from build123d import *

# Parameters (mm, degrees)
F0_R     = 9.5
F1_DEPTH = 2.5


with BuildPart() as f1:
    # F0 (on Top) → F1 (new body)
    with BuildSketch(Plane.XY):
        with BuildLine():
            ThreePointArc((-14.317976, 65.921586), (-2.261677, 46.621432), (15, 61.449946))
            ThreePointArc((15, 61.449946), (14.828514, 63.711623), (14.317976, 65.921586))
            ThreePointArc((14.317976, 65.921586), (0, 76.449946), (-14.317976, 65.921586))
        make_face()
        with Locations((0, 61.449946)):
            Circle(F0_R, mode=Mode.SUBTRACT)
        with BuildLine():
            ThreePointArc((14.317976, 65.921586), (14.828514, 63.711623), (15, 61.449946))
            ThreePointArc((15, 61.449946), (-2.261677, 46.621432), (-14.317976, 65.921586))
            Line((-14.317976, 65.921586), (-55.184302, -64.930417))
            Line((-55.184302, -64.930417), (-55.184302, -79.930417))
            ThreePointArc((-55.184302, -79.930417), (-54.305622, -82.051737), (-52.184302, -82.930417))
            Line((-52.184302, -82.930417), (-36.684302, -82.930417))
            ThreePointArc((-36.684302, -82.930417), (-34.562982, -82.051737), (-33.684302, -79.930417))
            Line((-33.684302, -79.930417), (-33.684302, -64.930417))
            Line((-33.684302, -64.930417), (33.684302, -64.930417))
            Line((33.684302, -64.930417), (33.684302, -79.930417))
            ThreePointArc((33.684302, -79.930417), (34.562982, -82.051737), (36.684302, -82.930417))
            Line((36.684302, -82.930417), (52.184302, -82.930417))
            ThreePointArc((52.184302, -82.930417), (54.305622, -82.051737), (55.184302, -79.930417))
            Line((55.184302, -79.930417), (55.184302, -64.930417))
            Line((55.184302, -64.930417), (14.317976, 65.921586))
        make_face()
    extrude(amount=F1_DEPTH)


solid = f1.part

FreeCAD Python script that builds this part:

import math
import FreeCAD as App
import Part
import Sketcher
from FreeCAD import Vector

doc = App.newDocument("Part")
body = doc.addObject("PartDesign::Body", "Body")

# Sketch on XY plane
sketch1 = body.newObject("Sketcher::SketchObject", "Sketch")
sketch1.AttachmentSupport = (doc.getObject("XY_Plane"), [""])
sketch1.MapMode = "FlatFace"
sketch1.addGeometry([
    Part.ArcOfCircle(Part.Circle(Vector(0, 61.4, 0), Vector(0, 0, 1), 15), math.radians(17), math.radians(163)),  # 0
    Part.LineSegment(Vector(-14.3, 65.9, 0), Vector(-55.2, -64.9, 0)),  # 1
    Part.LineSegment(Vector(-55.2, -64.9, 0), Vector(-55.2, -79.9, 0)),  # 2
    Part.ArcOfCircle(Part.Circle(Vector(-52.2, -79.9, 0), Vector(0, 0, 1), 3), math.radians(-180), math.radians(-90)),  # 3
    Part.LineSegment(Vector(-52.2, -82.9, 0), Vector(-36.7, -82.9, 0)),  # 4
    Part.ArcOfCircle(Part.Circle(Vector(-36.7, -79.9, 0), Vector(0, 0, 1), 3), math.radians(-90), math.radians(0)),  # 5
    Part.LineSegment(Vector(-33.7, -79.9, 0), Vector(-33.7, -64.9, 0)),  # 6
    Part.LineSegment(Vector(-33.7, -64.9, 0), Vector(33.7, -64.9, 0)),  # 7
    Part.LineSegment(Vector(33.7, -64.9, 0), Vector(33.7, -79.9, 0)),  # 8
    Part.ArcOfCircle(Part.Circle(Vector(36.7, -79.9, 0), Vector(0, 0, 1), 3), math.radians(-180), math.radians(-90)),  # 9
    Part.LineSegment(Vector(36.7, -82.9, 0), Vector(52.2, -82.9, 0)),  # 10
    Part.ArcOfCircle(Part.Circle(Vector(52.2, -79.9, 0), Vector(0, 0, 1), 3), math.radians(-90), math.radians(0)),  # 11
    Part.LineSegment(Vector(55.2, -79.9, 0), Vector(55.2, -64.9, 0)),  # 12
    Part.LineSegment(Vector(55.2, -64.9, 0), Vector(14.3, 65.9, 0)),  # 13
    Part.Circle(Vector(0, 61.4, 0), Vector(0, 0, 1), 9.5),  # 14
], False)
sketch1.addConstraint([
    Sketcher.Constraint("Tangent", 0, 2, 1, 1),
    Sketcher.Constraint("Coincident", 1, 2, 2, 1),
    Sketcher.Constraint("Tangent", 2, 2, 3, 1),
    Sketcher.Constraint("Tangent", 3, 2, 4, 1),
    Sketcher.Constraint("Tangent", 4, 2, 5, 1),
    Sketcher.Constraint("Tangent", 5, 2, 6, 1),
    Sketcher.Constraint("Coincident", 6, 2, 7, 1),
    Sketcher.Constraint("Coincident", 7, 2, 8, 1),
    Sketcher.Constraint("Tangent", 8, 2, 9, 1),
    Sketcher.Constraint("Tangent", 9, 2, 10, 1),
    Sketcher.Constraint("Tangent", 10, 2, 11, 1),
    Sketcher.Constraint("Tangent", 11, 2, 12, 1),
    Sketcher.Constraint("Coincident", 12, 2, 13, 1),
    Sketcher.Constraint("Tangent", 13, 2, 0, 1),
    Sketcher.Constraint("Vertical", 2),
    Sketcher.Constraint("Horizontal", 4),
    Sketcher.Constraint("Vertical", 6),
    Sketcher.Constraint("Horizontal", 7),
    Sketcher.Constraint("Vertical", 8),
    Sketcher.Constraint("Horizontal", 10),
    Sketcher.Constraint("Vertical", 12),
    Sketcher.Constraint("Coincident", 14, 3, 0, 3),
    Sketcher.Constraint("Equal", 3, 5),
    Sketcher.Constraint("Equal", 5, 9),
    Sketcher.Constraint("Equal", 9, 11),
    Sketcher.Constraint("Symmetric", 5, 3, 9, 3, -2),
    Sketcher.Constraint("Symmetric", 1, 2, 12, 2, -2),
    Sketcher.Constraint("PointOnObject", 0, 3, -2),
    Sketcher.Constraint("Horizontal", 1, 2, 6, 2),
    Sketcher.Constraint("Diameter", 14, 19.0),
    Sketcher.Constraint("Radius", 0, 15.0),
    Sketcher.Constraint("Radius", 3, 3.000001),
    Sketcher.Constraint("DistanceY", 2, 2, 2, 1, 15.0),
    Sketcher.Constraint("DistanceX", 4, 1, 4, 2, 15.5),
    Sketcher.Constraint("DistanceY", 5, 3, 0, 2, 145.852002),
    Sketcher.Constraint("DistanceX", 3, 3, -1, 1, 52.184301),
    Sketcher.Constraint("DistanceY", -1, 1, 0, 3, 61.449946),
])
pad1 = body.newObject("PartDesign::Pad", "Pad")
pad1.Profile = sketch1
pad1.Length = 2.5

doc.recompute()
